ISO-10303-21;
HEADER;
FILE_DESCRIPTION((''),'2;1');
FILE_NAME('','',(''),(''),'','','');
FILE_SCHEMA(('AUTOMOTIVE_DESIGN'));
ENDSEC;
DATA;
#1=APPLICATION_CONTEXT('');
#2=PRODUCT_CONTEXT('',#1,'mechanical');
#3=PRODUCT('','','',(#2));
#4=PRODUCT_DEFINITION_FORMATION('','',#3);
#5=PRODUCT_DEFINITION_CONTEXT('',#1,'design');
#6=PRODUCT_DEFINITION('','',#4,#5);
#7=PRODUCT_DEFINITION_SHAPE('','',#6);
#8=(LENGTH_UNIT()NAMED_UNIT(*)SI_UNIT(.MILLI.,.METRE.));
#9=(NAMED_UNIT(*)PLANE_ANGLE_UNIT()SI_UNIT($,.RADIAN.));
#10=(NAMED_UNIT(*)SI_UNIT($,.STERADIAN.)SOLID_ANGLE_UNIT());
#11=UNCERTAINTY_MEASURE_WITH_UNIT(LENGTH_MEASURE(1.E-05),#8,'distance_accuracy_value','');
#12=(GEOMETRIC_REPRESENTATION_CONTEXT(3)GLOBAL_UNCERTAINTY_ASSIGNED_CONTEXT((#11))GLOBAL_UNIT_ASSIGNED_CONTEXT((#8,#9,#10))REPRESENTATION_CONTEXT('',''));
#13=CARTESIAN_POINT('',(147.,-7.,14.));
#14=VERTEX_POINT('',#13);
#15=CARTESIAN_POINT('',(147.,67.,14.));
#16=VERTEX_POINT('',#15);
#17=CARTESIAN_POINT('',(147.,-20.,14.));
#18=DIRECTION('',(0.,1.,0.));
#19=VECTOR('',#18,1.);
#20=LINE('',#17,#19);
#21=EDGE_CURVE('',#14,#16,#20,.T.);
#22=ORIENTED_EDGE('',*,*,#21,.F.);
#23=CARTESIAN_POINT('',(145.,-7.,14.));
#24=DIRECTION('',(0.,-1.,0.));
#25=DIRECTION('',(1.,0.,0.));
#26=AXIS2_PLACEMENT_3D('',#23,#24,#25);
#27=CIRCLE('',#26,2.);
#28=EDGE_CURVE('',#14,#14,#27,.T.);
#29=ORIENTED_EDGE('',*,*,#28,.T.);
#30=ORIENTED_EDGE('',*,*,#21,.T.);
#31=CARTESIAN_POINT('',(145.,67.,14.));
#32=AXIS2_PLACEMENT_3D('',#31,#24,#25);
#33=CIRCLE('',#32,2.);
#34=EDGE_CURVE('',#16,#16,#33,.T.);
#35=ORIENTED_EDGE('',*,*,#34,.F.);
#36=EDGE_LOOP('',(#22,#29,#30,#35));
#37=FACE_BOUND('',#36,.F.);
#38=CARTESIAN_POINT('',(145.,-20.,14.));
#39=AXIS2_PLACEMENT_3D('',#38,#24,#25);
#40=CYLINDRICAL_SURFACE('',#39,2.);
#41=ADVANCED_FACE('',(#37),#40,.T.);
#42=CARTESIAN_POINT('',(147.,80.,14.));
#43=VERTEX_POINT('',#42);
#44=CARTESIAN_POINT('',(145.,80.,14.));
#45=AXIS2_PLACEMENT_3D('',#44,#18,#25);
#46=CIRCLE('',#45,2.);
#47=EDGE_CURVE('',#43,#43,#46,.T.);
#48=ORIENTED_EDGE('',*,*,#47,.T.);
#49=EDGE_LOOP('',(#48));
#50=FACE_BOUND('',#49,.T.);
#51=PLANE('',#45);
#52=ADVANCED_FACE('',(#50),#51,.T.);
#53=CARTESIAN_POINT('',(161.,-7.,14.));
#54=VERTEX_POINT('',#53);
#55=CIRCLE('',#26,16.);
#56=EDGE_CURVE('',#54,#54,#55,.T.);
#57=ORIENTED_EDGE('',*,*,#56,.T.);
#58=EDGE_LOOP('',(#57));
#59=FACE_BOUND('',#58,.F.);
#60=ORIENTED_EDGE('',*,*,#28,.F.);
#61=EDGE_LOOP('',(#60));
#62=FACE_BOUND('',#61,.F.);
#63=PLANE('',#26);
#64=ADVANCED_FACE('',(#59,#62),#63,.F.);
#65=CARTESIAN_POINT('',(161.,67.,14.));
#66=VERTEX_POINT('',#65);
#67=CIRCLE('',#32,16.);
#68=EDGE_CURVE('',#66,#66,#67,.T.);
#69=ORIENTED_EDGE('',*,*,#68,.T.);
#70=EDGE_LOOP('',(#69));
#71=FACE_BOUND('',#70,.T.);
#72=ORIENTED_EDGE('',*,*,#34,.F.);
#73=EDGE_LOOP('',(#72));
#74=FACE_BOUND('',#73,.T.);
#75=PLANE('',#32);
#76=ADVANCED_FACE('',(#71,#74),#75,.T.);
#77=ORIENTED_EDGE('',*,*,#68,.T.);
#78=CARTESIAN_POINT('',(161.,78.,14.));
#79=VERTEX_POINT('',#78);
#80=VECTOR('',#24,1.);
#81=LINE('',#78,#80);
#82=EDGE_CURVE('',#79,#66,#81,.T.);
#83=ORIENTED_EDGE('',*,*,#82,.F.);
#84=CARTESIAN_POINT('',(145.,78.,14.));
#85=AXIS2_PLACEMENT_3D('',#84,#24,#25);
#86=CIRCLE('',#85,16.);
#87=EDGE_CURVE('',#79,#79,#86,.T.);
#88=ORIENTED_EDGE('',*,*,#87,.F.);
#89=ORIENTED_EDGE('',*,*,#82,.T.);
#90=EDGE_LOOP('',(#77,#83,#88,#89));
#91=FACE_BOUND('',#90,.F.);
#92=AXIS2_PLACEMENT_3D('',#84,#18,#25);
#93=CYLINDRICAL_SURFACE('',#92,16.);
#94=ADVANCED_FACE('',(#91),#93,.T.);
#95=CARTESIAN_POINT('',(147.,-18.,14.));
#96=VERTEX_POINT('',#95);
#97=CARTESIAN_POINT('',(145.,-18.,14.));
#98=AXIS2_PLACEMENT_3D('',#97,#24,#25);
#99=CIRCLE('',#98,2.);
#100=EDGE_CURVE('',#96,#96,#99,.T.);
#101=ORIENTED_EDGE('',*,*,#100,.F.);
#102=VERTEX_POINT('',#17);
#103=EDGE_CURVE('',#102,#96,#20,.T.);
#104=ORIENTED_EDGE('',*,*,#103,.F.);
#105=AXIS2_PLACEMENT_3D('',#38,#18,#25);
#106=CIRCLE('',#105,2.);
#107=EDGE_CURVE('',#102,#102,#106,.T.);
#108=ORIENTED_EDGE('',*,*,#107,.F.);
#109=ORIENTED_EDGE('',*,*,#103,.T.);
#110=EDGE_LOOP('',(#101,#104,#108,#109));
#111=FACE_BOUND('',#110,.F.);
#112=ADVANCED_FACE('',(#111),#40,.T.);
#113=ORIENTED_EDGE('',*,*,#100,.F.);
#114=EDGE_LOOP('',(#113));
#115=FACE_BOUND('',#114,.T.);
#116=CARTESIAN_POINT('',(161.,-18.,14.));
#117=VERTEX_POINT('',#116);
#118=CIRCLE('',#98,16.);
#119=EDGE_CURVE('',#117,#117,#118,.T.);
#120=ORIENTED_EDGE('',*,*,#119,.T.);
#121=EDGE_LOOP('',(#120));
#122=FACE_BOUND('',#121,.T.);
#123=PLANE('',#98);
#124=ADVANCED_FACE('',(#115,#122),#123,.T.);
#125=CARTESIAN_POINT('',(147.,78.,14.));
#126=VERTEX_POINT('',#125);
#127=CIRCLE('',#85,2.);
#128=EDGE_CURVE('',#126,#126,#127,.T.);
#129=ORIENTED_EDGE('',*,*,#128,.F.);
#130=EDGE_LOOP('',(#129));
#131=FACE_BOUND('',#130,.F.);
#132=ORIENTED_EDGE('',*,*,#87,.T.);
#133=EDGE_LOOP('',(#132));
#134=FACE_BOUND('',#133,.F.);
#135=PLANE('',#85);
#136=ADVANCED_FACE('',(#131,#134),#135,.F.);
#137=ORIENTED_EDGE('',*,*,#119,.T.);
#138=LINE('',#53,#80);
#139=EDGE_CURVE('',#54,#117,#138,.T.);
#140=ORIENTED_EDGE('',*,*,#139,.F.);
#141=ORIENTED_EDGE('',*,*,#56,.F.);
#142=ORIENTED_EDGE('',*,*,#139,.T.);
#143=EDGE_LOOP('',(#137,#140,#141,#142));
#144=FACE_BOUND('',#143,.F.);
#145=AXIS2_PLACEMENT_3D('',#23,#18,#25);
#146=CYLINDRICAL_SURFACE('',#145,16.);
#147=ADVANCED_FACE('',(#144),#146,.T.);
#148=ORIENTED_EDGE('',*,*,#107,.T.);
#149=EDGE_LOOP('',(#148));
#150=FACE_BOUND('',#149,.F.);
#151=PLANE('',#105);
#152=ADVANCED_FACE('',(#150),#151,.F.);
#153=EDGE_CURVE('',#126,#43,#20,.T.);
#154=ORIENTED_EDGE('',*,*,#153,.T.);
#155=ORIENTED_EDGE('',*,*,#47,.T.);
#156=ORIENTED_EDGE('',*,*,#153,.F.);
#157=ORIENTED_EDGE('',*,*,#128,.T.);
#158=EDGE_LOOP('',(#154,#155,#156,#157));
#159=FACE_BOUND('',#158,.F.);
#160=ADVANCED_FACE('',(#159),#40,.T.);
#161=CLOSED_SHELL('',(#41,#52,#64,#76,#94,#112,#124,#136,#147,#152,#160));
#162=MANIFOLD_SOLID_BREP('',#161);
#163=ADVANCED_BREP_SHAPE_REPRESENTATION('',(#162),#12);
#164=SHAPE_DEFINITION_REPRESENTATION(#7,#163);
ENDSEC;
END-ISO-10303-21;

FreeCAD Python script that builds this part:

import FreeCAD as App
import Part
import Sketcher
from FreeCAD import Vector
Q = App.Units.Quantity

doc = App.newDocument("Part")
body = doc.addObject("PartDesign::Body", "Body")

# Sketch on XY plane
sketch1 = body.newObject("Sketcher::SketchObject", "Sketch")
sketch1.AttachmentSupport = (doc.getObject("XY_Plane"), [""])
sketch1.MapMode = "FlatFace"
sketch1.addGeometry(Part.Circle(Vector(0, 0, 0), Vector(0, 0, 1), 16), False)
sketch1.addConstraint([
    Sketcher.Constraint("Coincident", 0, 3, -1, 1),
    Sketcher.Constraint("Diameter", 0, Q("32 mm")),
])
pad1 = body.newObject("PartDesign::Pad", "Pad")
pad1.Profile = sketch1
pad1.Length = 11
body2 = doc.addObject("PartDesign::Body", "Body001")
doc.recompute()

body.Placement = App.Placement(Vector(0, 0, 0), App.Rotation(Vector(1, 0, 0), 90))
boolean = body2.newObject("PartDesign::Boolean", "Boolean")
boolean.Type = "Fuse"
boolean.addObjects([body])
body3 = doc.addObject("PartDesign::Body", "Body002")
doc.recompute()

body2.Placement = App.Placement(Vector(20, -7, 14), App.Rotation(Vector(0, 0, 1), 0))
boolean2 = body3.newObject("PartDesign::Boolean", "Boolean001")
boolean2.Type = "Fuse"
boolean2.addObjects([body2])
body4 = doc.addObject("PartDesign::Body", "Body003")

# Sketch on XY plane
sketch2 = body4.newObject("Sketcher::SketchObject", "Sketch001")
sketch2.AttachmentSupport = (doc.getObject("XY_Plane003"), [""])
sketch2.MapMode = "FlatFace"
sketch2.addGeometry(Part.Circle(Vector(0, 0, 0), Vector(0, 0, 1), 16), False)
sketch2.addConstraint([
    Sketcher.Constraint("Coincident", 0, 3, -1, 1),
    Sketcher.Constraint("Diameter", 0, Q("32 mm")),
])
pad2 = body4.newObject("PartDesign::Pad", "Pad001")
pad2.Profile = sketch2
pad2.Length = 11
body5 = doc.addObject("PartDesign::Body", "Body004")
doc.recompute()

body4.Placement = App.Placement(Vector(0, 0, 0), App.Rotation(Vector(1, 0, 0), 90))
boolean3 = body5.newObject("PartDesign::Boolean", "Boolean002")
boolean3.Type = "Fuse"
boolean3.addObjects([body4])
body6 = doc.addObject("PartDesign::Body", "Body005")
doc.recompute()

body5.Placement = App.Placement(Vector(20, 78, 14), App.Rotation(Vector(0, 0, 1), 0))
boolean4 = body6.newObject("PartDesign::Boolean", "Boolean003")
boolean4.Type = "Fuse"
boolean4.addObjects([body5])
body7 = doc.addObject("PartDesign::Body", "Body006")

# Sketch on XY plane
sketch3 = body7.newObject("Sketcher::SketchObject", "Sketch002")
sketch3.AttachmentSupport = (doc.getObject("XY_Plane006"), [""])
sketch3.MapMode = "FlatFace"
sketch3.addGeometry(Part.Circle(Vector(0, 0, 0), Vector(0, 0, 1), 2), False)
sketch3.addConstraint([
    Sketcher.Constraint("Coincident", 0, 3, -1, 1),
    Sketcher.Constraint("Diameter", 0, Q("4 mm")),
])
pad3 = body7.newObject("PartDesign::Pad", "Pad002")
pad3.Profile = sketch3
pad3.Length = 100
body8 = doc.addObject("PartDesign::Body", "Body007")
doc.recompute()

body7.Placement = App.Placement(Vector(0, 0, 0), App.Rotation(Vector(1, 0, 0), 270))
boolean5 = body8.newObject("PartDesign::Boolean", "Boolean004")
boolean5.Type = "Fuse"
boolean5.addObjects([body7])
body9 = doc.addObject("PartDesign::Body", "Body008")
doc.recompute()

body8.Placement = App.Placement(Vector(20, -20, 14), App.Rotation(Vector(0, 0, 1), 0))
boolean6 = body9.newObject("PartDesign::Boolean", "Boolean005")
boolean6.Type = "Fuse"
boolean6.addObjects([body8])
doc.recompute()

boolean7 = body9.newObject("PartDesign::Boolean", "Boolean006")
boolean7.Type = "Fuse"
boolean7.addObjects([body3])
doc.recompute()

boolean8 = body9.newObject("PartDesign::Boolean", "Boolean007")
boolean8.Type = "Fuse"
boolean8.addObjects([body6])
body10 = doc.addObject("PartDesign::Body", "Body009")
doc.recompute()

body9.Placement = App.Placement(Vector(125, 0, 0), App.Rotation(Vector(0, 0, 1), 0))
boolean9 = body10.newObject("PartDesign::Boolean", "Boolean008")
boolean9.Type = "Fuse"
boolean9.addObjects([body9])

doc.recompute()
